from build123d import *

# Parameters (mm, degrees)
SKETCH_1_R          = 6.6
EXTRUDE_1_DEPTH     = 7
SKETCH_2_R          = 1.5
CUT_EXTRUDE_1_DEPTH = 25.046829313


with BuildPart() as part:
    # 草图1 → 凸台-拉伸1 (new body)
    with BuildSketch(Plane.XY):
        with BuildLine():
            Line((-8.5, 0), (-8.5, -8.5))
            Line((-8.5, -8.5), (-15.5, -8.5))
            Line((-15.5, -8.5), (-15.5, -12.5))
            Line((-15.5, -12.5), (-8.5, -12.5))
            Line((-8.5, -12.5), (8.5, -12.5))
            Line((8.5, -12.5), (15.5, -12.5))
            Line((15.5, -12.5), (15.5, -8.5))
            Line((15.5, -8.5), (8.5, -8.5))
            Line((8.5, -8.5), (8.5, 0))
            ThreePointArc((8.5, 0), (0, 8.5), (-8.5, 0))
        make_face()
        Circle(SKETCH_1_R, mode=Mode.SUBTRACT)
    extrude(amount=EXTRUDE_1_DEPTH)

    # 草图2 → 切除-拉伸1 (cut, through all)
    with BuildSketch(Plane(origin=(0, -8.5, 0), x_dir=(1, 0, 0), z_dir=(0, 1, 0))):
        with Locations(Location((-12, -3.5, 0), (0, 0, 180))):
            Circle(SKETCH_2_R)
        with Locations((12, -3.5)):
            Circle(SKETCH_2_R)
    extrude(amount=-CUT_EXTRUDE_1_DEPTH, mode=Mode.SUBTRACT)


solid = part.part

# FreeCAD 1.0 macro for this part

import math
import FreeCAD as App
import Part
import Sketcher

doc = App.newDocument("Part")
body = doc.addObject("PartDesign::Body", "Body")

sketch1 = body.newObject("Sketcher::SketchObject", "Sketch")
sketch1.AttachmentSupport = (doc.getObject("XY_Plane"), [""])
sketch1.MapMode = "FlatFace"
sketch1.addGeometry(Part.LineSegment(App.Vector(-8.5, 0, 0), App.Vector(-8.5, -8.5, 0)), False)
sketch1.addGeometry(Part.LineSegment(App.Vector(-8.5, -8.5, 0), App.Vector(-15.5, -8.5, 0)), False)
sketch1.addGeometry(Part.LineSegment(App.Vector(-15.5, -8.5, 0), App.Vector(-15.5, -12.5, 0)), False)
sketch1.addGeometry(Part.LineSegment(App.Vector(-15.5, -12.5, 0), App.Vector(15.5, -12.5, 0)), False)
sketch1.addGeometry(Part.LineSegment(App.Vector(15.5, -12.5, 0), App.Vector(15.5, -8.5, 0)), False)
sketch1.addGeometry(Part.LineSegment(App.Vector(15.5, -8.5, 0), App.Vector(8.5, -8.5, 0)), False)
sketch1.addGeometry(Part.LineSegment(App.Vector(8.5, -8.5, 0), App.Vector(8.5, 0, 0)), False)
sketch1.addGeometry(Part.ArcOfCircle(Part.Circle(App.Vector(0, 0, 0), App.Vector(0, 0, 1), 8.5), math.radians(0), math.radians(180)), False)
sketch1.addGeometry(Part.Circle(App.Vector(0, 0, 0), App.Vector(0, 0, 1), 6.6), False)
sketch1.addConstraint(Sketcher.Constraint("Coincident", 0, 2, 1, 1))
sketch1.addConstraint(Sketcher.Constraint("Coincident", 1, 2, 2, 1))
sketch1.addConstraint(Sketcher.Constraint("Coincident", 2, 2, 3, 1))
sketch1.addConstraint(Sketcher.Constraint("Coincident", 3, 2, 4, 1))
sketch1.addConstraint(Sketcher.Constraint("Coincident", 4, 2, 5, 1))
sketch1.addConstraint(Sketcher.Constraint("Coincident", 5, 2, 6, 1))
sketch1.addConstraint(Sketcher.Constraint("Tangent", 6, 2, 7, 1))
sketch1.addConstraint(Sketcher.Constraint("Tangent", 7, 2, 0, 1))
sketch1.addConstraint(Sketcher.Constraint("Vertical", 0))
sketch1.addConstraint(Sketcher.Constraint("Horizontal", 1))
sketch1.addConstraint(Sketcher.Constraint("Vertical", 2))
sketch1.addConstraint(Sketcher.Constraint("Horizontal", 3))
sketch1.addConstraint(Sketcher.Constraint("Vertical", 4))
sketch1.addConstraint(Sketcher.Constraint("Horizontal", 5))
sketch1.addConstraint(Sketcher.Constraint("Vertical", 6))
sketch1.addConstraint(Sketcher.Constraint("Coincident", 7, 3, -1, 1))
sketch1.addConstraint(Sketcher.Constraint("Coincident", 8, 3, -1, 1))
sketch1.addConstraint(Sketcher.Constraint("Symmetric", 1, 2, 4, 2, -2))
sketch1.addConstraint(Sketcher.Constraint("Diameter", 8, 13.2))
sketch1.addConstraint(Sketcher.Constraint("Radius", 7, 8.5))
sketch1.addConstraint(Sketcher.Constraint("DistanceX", 1, 2, 1, 1, 7.0))
sketch1.addConstraint(Sketcher.Constraint("DistanceY", 2, 2, 2, 1, 4.0))
sketch1.addConstraint(Sketcher.Constraint("DistanceY", 0, 2, 0, 1, 8.5))
pad1 = body.newObject("PartDesign::Pad", "Pad")
pad1.Profile = sketch1
pad1.Length = 7

sketch2 = body.newObject("Sketcher::SketchObject", "Sketch001")
sketch2.AttachmentSupport = (doc.getObject("XZ_Plane"), [""])
sketch2.MapMode = "FlatFace"
sketch2.AttachmentOffset = App.Placement(App.Vector(0, 0, 8.5), App.Rotation())
sketch2.addGeometry(Part.Circle(App.Vector(-12, 3.5, 0), App.Vector(0, 0, 1), 1.5), False)
sketch2.addGeometry(Part.Circle(App.Vector(12, 3.5, 0), App.Vector(0, 0, 1), 1.5), False)
sketch2.addConstraint(Sketcher.Constraint("Equal", 0, 1))
sketch2.addConstraint(Sketcher.Constraint("Symmetric", 0, 3, 1, 3, -2))
sketch2.addConstraint(Sketcher.Constraint("Diameter", 0, 3.0))
sketch2.addConstraint(Sketcher.Constraint("DistanceX", 0, 3, -1, 1, 12.0))
sketch2.addConstraint(Sketcher.Constraint("DistanceY", -1, 1, 0, 3, 3.5))
pocket1 = body.newObject("PartDesign::Pocket", "Pocket")
pocket1.Profile = sketch2
pocket1.Type = "ThroughAll"
pocket1.Reversed = True

doc.recompute()
